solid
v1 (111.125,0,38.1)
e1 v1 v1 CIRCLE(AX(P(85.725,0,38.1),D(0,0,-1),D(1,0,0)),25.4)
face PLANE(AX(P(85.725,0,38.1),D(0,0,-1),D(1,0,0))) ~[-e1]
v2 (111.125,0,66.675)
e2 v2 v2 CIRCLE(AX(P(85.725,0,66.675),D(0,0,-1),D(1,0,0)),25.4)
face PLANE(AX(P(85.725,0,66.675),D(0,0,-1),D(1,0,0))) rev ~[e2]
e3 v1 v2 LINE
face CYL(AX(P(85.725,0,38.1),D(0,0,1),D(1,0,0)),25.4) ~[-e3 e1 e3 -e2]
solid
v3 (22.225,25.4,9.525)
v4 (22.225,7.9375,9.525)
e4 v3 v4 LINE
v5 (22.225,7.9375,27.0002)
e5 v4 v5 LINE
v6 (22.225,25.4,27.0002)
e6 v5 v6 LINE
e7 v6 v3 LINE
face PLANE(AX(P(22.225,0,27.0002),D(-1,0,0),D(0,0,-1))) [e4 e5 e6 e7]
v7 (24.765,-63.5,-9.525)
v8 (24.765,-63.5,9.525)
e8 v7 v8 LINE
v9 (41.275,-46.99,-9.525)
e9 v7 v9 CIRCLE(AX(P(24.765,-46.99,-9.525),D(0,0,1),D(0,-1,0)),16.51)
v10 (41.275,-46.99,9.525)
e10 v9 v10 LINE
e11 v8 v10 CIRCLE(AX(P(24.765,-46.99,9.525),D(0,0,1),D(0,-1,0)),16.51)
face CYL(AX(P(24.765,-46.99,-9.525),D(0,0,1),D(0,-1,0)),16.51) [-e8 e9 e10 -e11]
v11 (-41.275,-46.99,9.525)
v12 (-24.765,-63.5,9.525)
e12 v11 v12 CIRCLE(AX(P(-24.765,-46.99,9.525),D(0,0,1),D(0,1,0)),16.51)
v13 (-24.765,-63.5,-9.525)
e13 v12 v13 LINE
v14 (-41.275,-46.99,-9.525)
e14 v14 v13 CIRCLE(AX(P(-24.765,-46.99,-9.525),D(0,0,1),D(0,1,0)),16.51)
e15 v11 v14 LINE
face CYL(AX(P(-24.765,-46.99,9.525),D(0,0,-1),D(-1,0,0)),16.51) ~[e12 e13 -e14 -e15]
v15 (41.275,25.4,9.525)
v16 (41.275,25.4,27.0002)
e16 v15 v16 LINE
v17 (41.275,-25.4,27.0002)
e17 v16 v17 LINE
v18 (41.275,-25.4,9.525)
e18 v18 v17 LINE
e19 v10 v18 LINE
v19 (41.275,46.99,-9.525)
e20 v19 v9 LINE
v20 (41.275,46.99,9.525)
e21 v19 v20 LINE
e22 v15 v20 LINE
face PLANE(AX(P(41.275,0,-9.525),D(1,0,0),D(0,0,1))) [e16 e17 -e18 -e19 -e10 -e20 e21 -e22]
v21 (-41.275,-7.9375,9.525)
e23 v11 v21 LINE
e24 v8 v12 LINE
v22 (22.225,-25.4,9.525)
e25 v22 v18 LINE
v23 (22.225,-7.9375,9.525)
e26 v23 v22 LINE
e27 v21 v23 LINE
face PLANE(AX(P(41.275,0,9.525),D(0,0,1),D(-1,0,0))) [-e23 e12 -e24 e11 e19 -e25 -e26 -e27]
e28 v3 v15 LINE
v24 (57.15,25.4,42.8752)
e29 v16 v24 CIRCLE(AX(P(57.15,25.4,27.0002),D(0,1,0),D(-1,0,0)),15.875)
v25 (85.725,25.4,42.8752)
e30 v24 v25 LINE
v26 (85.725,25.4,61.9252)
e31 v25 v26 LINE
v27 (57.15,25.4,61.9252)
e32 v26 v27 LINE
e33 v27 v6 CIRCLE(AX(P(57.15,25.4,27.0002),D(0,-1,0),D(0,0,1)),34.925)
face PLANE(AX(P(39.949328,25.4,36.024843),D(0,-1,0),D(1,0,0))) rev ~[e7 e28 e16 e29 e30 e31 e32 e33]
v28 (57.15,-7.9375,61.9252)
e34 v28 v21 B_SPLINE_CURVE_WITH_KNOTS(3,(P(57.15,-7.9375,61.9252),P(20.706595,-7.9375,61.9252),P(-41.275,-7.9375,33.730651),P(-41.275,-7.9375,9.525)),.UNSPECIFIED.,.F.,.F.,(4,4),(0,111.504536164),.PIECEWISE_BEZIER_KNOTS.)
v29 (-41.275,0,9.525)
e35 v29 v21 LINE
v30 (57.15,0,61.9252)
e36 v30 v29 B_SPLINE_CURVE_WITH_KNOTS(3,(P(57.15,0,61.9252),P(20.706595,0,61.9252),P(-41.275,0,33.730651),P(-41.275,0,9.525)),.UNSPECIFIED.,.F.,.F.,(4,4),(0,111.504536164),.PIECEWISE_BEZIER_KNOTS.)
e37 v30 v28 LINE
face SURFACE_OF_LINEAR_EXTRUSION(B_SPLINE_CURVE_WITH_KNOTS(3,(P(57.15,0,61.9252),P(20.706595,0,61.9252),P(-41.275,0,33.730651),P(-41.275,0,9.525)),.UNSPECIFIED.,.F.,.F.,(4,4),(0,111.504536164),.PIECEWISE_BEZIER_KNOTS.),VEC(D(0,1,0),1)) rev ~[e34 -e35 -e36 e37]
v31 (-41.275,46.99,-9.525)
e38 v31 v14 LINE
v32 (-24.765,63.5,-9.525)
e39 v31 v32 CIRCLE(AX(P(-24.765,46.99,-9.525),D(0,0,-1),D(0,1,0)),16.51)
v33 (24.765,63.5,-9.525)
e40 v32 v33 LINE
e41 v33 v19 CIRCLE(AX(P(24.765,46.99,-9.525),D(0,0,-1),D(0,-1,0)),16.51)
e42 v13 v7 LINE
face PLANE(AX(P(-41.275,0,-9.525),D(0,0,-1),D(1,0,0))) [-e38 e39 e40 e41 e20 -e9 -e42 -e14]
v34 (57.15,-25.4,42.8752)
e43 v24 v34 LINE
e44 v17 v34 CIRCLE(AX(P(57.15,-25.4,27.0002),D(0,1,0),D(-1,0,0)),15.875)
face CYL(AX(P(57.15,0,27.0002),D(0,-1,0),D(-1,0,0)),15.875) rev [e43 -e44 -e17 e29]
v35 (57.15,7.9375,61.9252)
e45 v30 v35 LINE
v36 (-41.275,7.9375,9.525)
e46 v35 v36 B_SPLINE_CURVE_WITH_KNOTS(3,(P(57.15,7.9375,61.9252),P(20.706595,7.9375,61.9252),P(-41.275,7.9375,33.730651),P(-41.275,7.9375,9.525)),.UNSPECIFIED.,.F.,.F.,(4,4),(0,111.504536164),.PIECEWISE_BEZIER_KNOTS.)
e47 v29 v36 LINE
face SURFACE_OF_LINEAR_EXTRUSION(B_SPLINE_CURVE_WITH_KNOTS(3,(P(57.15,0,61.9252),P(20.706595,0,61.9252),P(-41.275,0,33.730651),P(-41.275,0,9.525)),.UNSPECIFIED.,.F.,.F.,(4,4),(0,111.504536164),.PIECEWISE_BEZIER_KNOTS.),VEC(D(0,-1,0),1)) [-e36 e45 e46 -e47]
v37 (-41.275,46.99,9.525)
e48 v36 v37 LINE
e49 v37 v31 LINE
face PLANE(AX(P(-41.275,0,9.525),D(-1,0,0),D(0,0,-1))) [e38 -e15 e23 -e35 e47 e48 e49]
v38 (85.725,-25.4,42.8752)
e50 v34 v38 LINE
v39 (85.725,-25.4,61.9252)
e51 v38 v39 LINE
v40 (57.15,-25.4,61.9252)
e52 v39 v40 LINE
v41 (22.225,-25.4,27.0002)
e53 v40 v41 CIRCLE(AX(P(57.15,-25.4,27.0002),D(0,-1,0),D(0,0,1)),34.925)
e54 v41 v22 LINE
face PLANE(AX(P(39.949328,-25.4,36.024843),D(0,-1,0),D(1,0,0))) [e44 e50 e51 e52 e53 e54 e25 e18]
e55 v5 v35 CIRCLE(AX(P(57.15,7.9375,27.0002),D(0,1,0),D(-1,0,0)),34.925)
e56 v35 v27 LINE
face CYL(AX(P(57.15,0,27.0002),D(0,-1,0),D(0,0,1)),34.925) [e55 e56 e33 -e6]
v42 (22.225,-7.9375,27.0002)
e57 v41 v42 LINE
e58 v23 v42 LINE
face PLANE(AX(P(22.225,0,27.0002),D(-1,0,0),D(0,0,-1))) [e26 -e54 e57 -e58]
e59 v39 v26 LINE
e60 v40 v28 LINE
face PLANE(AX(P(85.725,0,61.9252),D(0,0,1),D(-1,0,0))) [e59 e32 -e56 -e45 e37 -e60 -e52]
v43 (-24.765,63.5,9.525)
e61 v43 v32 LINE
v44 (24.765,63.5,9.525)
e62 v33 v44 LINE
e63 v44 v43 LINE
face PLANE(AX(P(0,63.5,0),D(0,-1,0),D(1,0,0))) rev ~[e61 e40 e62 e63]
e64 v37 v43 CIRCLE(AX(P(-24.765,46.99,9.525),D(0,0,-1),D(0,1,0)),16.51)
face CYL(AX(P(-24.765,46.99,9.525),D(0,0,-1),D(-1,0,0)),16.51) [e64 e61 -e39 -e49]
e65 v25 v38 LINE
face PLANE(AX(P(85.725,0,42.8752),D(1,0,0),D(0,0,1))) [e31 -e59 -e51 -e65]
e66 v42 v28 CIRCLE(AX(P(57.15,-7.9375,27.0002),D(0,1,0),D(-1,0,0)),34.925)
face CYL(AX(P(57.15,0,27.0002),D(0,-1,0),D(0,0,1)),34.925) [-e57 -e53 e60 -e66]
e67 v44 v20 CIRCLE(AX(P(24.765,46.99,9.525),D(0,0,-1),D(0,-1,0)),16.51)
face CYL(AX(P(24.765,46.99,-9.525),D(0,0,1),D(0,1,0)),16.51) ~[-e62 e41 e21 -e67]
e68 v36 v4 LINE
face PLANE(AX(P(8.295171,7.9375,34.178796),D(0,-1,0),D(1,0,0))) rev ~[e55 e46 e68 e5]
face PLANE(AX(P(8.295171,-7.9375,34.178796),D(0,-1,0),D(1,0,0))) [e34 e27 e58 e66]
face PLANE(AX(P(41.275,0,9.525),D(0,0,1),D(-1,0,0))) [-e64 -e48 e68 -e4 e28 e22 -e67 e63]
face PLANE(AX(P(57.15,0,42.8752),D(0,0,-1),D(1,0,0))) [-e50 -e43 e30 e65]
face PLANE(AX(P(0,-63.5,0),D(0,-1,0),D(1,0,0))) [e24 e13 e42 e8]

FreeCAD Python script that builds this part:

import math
import FreeCAD as App
import Part
import Sketcher
Q = App.Units.Quantity


def edges_at(feature, points):
    """Names of the edges that pass closest to the given points."""
    edges = feature.Shape.Edges
    near = lambda p: min(range(len(edges)), key=lambda i: edges[i].distToShape(Part.Vertex(*p))[0])
    return sorted({f"Edge{near(p) + 1}" for p in points})

doc = App.newDocument("Part")
body = doc.addObject("PartDesign::Body", "Body")

# Sketch on XZ plane
sketch1 = body.newObject("Sketcher::SketchObject", "Sketch")
sketch1.AttachmentSupport = (doc.getObject("XZ_Plane"), [""])
sketch1.MapMode = "FlatFace"
sketch1.addGeometry(Part.LineSegment(App.Vector(-41, 10, 0), App.Vector(-41, -10, 0)), False)
sketch1.addGeometry(Part.LineSegment(App.Vector(-41, -10, 0), App.Vector(41, -10, 0)), False)
sketch1.addGeometry(Part.LineSegment(App.Vector(41, -10, 0), App.Vector(41, 10, 0)), False)
sketch1.addGeometry(Part.LineSegment(App.Vector(41, 10, 0), App.Vector(-41, 10, 0)), False)
sketch1.addConstraint(Sketcher.Constraint("Coincident", 0, 2, 1, 1))
sketch1.addConstraint(Sketcher.Constraint("Coincident", 1, 2, 2, 1))
sketch1.addConstraint(Sketcher.Constraint("Coincident", 2, 2, 3, 1))
sketch1.addConstraint(Sketcher.Constraint("Coincident", 3, 2, 0, 1))
sketch1.addConstraint(Sketcher.Constraint("Vertical", 0))
sketch1.addConstraint(Sketcher.Constraint("Horizontal", 1))
sketch1.addConstraint(Sketcher.Constraint("Vertical", 2))
sketch1.addConstraint(Sketcher.Constraint("Horizontal", 3))
sketch1.addConstraint(Sketcher.Constraint("Symmetric", 0, 2, 2, 2, -1, 1))
sketch1.addConstraint(Sketcher.Constraint("DistanceX", 1, 1, 1, 2, Q("3.25 in")))
sketch1.addConstraint(Sketcher.Constraint("DistanceY", 0, 2, 0, 1, Q("0.75 in")))
pad1 = body.newObject("PartDesign::Pad", "Pad")
pad1.Profile = sketch1
pad1.Length = Q("5 in")
pad1.Midplane = True

# Sketch on XZ plane
sketch2 = body.newObject("Sketcher::SketchObject", "Sketch001")
sketch2.AttachmentSupport = (doc.getObject("XZ_Plane"), [""])
sketch2.MapMode = "FlatFace"
sketch2.addGeometry(Part.LineSegment(App.Vector(22, 27, 0), App.Vector(22, 10, 0)), False)
sketch2.addGeometry(Part.LineSegment(App.Vector(22, 10, 0), App.Vector(41, 10, 0)), False)
sketch2.addGeometry(Part.LineSegment(App.Vector(41, 10, 0), App.Vector(41, 27, 0)), False)
sketch2.addGeometry(Part.ArcOfCircle(Part.Circle(App.Vector(57, 27, 0), App.Vector(0, 0, 1), 16), math.radians(90), math.radians(180)), False)
sketch2.addGeometry(Part.LineSegment(App.Vector(57, 43, 0), App.Vector(86, 43, 0)), False)
sketch2.addGeometry(Part.LineSegment(App.Vector(86, 43, 0), App.Vector(86, 62, 0)), False)
sketch2.addGeometry(Part.LineSegment(App.Vector(86, 62, 0), App.Vector(57, 62, 0)), False)
sketch2.addGeometry(Part.ArcOfCircle(Part.Circle(App.Vector(57, 27, 0), App.Vector(0, 0, 1), 35), math.radians(90), math.radians(180)), False)
sketch2.addConstraint(Sketcher.Constraint("Coincident", 0, 2, 1, 1))
sketch2.addConstraint(Sketcher.Constraint("Coincident", 1, 2, 2, 1))
sketch2.addConstraint(Sketcher.Constraint("Tangent", 2, 2, 3, 2))
sketch2.addConstraint(Sketcher.Constraint("Tangent", 3, 1, 4, 1))
sketch2.addConstraint(Sketcher.Constraint("Coincident", 4, 2, 5, 1))
sketch2.addConstraint(Sketcher.Constraint("Coincident", 5, 2, 6, 1))
sketch2.addConstraint(Sketcher.Constraint("Tangent", 6, 2, 7, 1))
sketch2.addConstraint(Sketcher.Constraint("Tangent", 7, 2, 0, 1))
sketch2.addConstraint(Sketcher.Constraint("Vertical", 0))
sketch2.addConstraint(Sketcher.Constraint("Horizontal", 1))
sketch2.addConstraint(Sketcher.Constraint("Vertical", 2))
sketch2.addConstraint(Sketcher.Constraint("Horizontal", 4))
sketch2.addConstraint(Sketcher.Constraint("Vertical", 5))
sketch2.addConstraint(Sketcher.Constraint("Horizontal", 6))
sketch2.addConstraint(Sketcher.Constraint("Coincident", 7, 3, 3, 3))
sketch2.addConstraint(Sketcher.Constraint("Radius", 3, Q("0.625 in")))
sketch2.addConstraint(Sketcher.Constraint("Radius", 7, Q("1.375 in")))
sketch2.addConstraint(Sketcher.Constraint("DistanceX", 4, 1, 4, 2, Q("1.125 in")))
sketch2.addConstraint(Sketcher.Constraint("DistanceY", 0, 2, 0, 1, Q("0.688 in")))
sketch2.addConstraint(Sketcher.Constraint("DistanceX", -1, 1, 3, 3, Q("2.25 in")))
sketch2.addConstraint(Sketcher.Constraint("DistanceY", -1, 1, 3, 3, Q("1.063 in")))
pad2 = body.newObject("PartDesign::Pad", "Pad001")
pad2.Profile = sketch2
pad2.Length = Q("2 in")
pad2.Midplane = True

# Sketch on XZ plane
sketch3 = body.newObject("Sketcher::SketchObject", "Sketch002")
sketch3.AttachmentSupport = (doc.getObject("XZ_Plane"), [""])
sketch3.MapMode = "FlatFace"
sketch3.addGeometry(Part.BSplineCurve([App.Vector(57.15, 61.9252, 0), App.Vector(20.706595, 61.9252, 0), App.Vector(-41.275, 33.730651, 0), App.Vector(-41.275, 9.525, 0)], [4, 4], [0, 111.504536164], False, 3, [1, 1, 1, 1], False), False)
sketch3.addGeometry(Part.LineSegment(App.Vector(-41.275, 9.525, 0), App.Vector(22.225, 9.525, 0)), False)
sketch3.addGeometry(Part.LineSegment(App.Vector(22.225, 9.525, 0), App.Vector(22.225, 27.0002, 0)), False)
sketch3.addGeometry(Part.ArcOfCircle(Part.Circle(App.Vector(57.15, 27.0002, 0), App.Vector(0, 0, 1), 34.925), math.radians(90), math.radians(180)), False)
sketch3.addConstraint(Sketcher.Constraint("Block", 0))
sketch3.addConstraint(Sketcher.Constraint("Coincident", 0, 2, 1, 1))
sketch3.addConstraint(Sketcher.Constraint("Coincident", 1, 2, 2, 1))
sketch3.addConstraint(Sketcher.Constraint("Tangent", 2, 2, 3, 2))
sketch3.addConstraint(Sketcher.Constraint("Coincident", 3, 1, 0, 1))
sketch3.addConstraint(Sketcher.Constraint("Horizontal", 1))
sketch3.addConstraint(Sketcher.Constraint("Vertical", 2))
sketch3.addConstraint(Sketcher.Constraint("DistanceX", 1, 1, 1, 2, Q("2.5 in")))
sketch3.addConstraint(Sketcher.Constraint("Radius", 3, Q("1.375 in")))
pad3 = body.newObject("PartDesign::Pad", "Pad002")
pad3.Profile = sketch3
pad3.Length = Q("0.625 in")
pad3.Midplane = True
doc.recompute()

fillet = body.newObject("PartDesign::Fillet", "Fillet")
fillet.Base = (pad3, edges_at(pad3, [
    (-41.275, -63.5, 0),
    (41.275, -63.5, 0),
    (41.275, 63.5, 0),
    (-41.275, 63.5, 0),
]))
fillet.Radius = Q("0.65 in")
body2 = doc.addObject("PartDesign::Body", "Body001")

# Sketch on XZ plane
sketch4 = body2.newObject("Sketcher::SketchObject", "Sketch003")
sketch4.AttachmentSupport = (doc.getObject("XZ_Plane001"), [""])
sketch4.MapMode = "FlatFace"
sketch4.addGeometry(Part.LineSegment(App.Vector(86, 67, 0), App.Vector(86, 38, 0)), False)
sketch4.addGeometry(Part.LineSegment(App.Vector(86, 38, 0), App.Vector(111, 38, 0)), False)
sketch4.addGeometry(Part.LineSegment(App.Vector(111, 38, 0), App.Vector(111, 67, 0)), False)
sketch4.addGeometry(Part.LineSegment(App.Vector(111, 67, 0), App.Vector(86, 67, 0)), False)
sketch4.addGeometry(Part.LineSegment(App.Vector(86, 67, 0), App.Vector(86, 38, 0)), True)  # axis
sketch4.addConstraint(Sketcher.Constraint("Coincident", 0, 2, 1, 1))
sketch4.addConstraint(Sketcher.Constraint("Coincident", 1, 2, 2, 1))
sketch4.addConstraint(Sketcher.Constraint("Coincident", 2, 2, 3, 1))
sketch4.addConstraint(Sketcher.Constraint("Coincident", 3, 2, 0, 1))
sketch4.addConstraint(Sketcher.Constraint("Vertical", 0))
sketch4.addConstraint(Sketcher.Constraint("Horizontal", 1))
sketch4.addConstraint(Sketcher.Constraint("Vertical", 2))
sketch4.addConstraint(Sketcher.Constraint("Horizontal", 3))
sketch4.addConstraint(Sketcher.Constraint("Vertical", 4))
sketch4.addConstraint(Sketcher.Constraint("Coincident", 4, 1, 3, 2))
sketch4.addConstraint(Sketcher.Constraint("Horizontal", 1, 2, 4, 2))
sketch4.addConstraint(Sketcher.Constraint("DistanceX", 1, 1, 1, 2, Q("1 in")))
sketch4.addConstraint(Sketcher.Constraint("DistanceY", -1, 1, 0, 2, Q("1.5 in")))
sketch4.addConstraint(Sketcher.Constraint("DistanceY", 0, 2, 0, 1, Q("1.125 in")))
sketch4.addConstraint(Sketcher.Constraint("DistanceX", -1, 1, 0, 2, Q("3.375 in")))
revolution = body2.newObject("PartDesign::Revolution", "Revolution")
revolution.Profile = sketch4
revolution.ReferenceAxis = (sketch4, ["Axis0"])
revolution.Angle = 360

doc.recompute()
